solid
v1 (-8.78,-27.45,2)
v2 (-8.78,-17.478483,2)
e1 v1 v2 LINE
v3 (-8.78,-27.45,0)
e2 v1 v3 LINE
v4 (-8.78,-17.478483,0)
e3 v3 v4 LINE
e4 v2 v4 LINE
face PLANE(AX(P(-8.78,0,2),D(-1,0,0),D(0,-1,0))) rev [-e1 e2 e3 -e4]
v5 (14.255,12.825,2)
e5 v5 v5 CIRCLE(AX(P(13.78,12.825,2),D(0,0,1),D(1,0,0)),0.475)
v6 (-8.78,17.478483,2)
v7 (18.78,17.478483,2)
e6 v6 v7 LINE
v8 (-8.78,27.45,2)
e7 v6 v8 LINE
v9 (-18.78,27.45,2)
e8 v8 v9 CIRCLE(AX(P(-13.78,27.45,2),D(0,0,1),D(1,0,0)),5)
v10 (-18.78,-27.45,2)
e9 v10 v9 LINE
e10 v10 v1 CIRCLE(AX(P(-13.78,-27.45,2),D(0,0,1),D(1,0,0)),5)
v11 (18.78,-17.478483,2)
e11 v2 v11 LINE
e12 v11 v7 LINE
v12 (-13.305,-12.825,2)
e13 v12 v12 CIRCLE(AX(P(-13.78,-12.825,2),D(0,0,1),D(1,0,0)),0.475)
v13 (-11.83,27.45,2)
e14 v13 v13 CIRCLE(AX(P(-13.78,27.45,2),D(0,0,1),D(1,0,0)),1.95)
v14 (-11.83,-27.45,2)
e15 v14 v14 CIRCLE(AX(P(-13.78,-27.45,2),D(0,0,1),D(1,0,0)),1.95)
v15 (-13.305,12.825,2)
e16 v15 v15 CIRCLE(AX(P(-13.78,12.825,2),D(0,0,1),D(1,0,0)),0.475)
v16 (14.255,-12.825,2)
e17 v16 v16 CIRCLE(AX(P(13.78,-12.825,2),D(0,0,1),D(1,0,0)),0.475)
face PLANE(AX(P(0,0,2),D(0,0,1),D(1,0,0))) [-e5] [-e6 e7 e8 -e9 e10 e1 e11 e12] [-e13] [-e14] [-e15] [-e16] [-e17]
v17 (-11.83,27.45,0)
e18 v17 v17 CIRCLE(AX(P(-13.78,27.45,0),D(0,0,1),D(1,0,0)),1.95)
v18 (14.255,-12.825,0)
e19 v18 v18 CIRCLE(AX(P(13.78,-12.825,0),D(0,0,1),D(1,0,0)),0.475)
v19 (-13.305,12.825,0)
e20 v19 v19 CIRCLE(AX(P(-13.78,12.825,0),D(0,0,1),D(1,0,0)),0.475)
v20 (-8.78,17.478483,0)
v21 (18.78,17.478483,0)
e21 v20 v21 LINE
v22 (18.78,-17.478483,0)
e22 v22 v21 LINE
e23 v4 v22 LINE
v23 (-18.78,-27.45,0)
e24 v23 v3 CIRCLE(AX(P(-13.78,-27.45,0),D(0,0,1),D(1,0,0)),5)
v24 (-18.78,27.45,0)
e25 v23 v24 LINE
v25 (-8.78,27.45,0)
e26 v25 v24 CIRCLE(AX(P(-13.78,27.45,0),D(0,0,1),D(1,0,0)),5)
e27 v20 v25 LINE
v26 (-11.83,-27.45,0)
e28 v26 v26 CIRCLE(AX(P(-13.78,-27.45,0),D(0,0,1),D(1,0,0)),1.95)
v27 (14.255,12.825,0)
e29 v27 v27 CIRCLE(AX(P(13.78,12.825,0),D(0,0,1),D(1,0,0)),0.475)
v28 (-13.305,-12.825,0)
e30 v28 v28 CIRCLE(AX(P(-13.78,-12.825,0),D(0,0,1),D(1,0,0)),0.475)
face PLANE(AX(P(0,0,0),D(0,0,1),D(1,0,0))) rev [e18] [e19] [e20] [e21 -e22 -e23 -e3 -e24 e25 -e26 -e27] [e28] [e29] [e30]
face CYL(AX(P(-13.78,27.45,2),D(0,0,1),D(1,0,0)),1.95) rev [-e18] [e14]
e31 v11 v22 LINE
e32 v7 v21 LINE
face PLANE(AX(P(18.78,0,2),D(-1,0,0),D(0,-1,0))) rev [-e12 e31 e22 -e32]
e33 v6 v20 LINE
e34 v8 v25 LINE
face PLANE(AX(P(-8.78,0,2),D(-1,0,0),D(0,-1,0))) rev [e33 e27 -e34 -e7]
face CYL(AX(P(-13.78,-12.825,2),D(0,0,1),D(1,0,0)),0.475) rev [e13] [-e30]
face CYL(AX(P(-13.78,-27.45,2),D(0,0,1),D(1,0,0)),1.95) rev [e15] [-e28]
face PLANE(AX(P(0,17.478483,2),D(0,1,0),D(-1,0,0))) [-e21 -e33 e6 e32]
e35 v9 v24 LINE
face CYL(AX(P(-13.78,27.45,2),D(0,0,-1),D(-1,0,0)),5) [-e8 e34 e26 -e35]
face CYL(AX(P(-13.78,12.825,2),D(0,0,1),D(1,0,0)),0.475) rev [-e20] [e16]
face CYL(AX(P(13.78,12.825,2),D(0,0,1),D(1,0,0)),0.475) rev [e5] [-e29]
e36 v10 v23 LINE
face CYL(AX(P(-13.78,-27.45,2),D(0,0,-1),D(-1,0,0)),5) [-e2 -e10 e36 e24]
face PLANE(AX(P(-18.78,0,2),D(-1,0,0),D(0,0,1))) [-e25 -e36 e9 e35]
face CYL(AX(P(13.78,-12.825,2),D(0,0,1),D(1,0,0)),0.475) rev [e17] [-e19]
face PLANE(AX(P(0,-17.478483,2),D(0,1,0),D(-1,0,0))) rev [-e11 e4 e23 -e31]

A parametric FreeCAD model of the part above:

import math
import FreeCAD as App
import Part
import Sketcher

doc = App.newDocument("Part")
body = doc.addObject("PartDesign::Body", "Body")

# Sketch on XY plane
sketch1 = doc.addObject("Sketcher::SketchObject", "Sketch")
body.addObject(sketch1)
sketch1.AttachmentSupport = (doc.XY_Plane, [""])
sketch1.MapMode = "FlatFace"
sketch1.addGeometry([
    Part.LineSegment(App.Vector(19, -17, 0), App.Vector(19, 17, 0)),  # 0
    Part.LineSegment(App.Vector(19, 17, 0), App.Vector(-9, 17, 0)),  # 1
    Part.LineSegment(App.Vector(-9, 17, 0), App.Vector(-9, 27, 0)),  # 2
    Part.ArcOfCircle(Part.Circle(App.Vector(-14, 27, 0), App.Vector(0, 0, 1), 5), math.radians(0), math.radians(180)),  # 3
    Part.LineSegment(App.Vector(-19, 27, 0), App.Vector(-19, -27, 0)),  # 4
    Part.ArcOfCircle(Part.Circle(App.Vector(-14, -27, 0), App.Vector(0, 0, 1), 5), math.radians(180), math.radians(360)),  # 5
    Part.LineSegment(App.Vector(-9, -27, 0), App.Vector(-9, -17, 0)),  # 6
    Part.LineSegment(App.Vector(-9, -17, 0), App.Vector(19, -17, 0)),  # 7
], False)
sketch1.addConstraint([
    Sketcher.Constraint("Coincident", 0, 2, 1, 1),
    Sketcher.Constraint("Coincident", 1, 2, 2, 1),
    Sketcher.Constraint("Tangent", 2, 2, 3, 1),
    Sketcher.Constraint("Tangent", 3, 2, 4, 1),
    Sketcher.Constraint("Tangent", 4, 2, 5, 1),
    Sketcher.Constraint("Tangent", 5, 2, 6, 1),
    Sketcher.Constraint("Coincident", 6, 2, 7, 1),
    Sketcher.Constraint("Coincident", 7, 2, 0, 1),
    Sketcher.Constraint("Vertical", 0),
    Sketcher.Constraint("Horizontal", 1),
    Sketcher.Constraint("Vertical", 2),
    Sketcher.Constraint("Vertical", 4),
    Sketcher.Constraint("Vertical", 6),
    Sketcher.Constraint("Horizontal", 7),
    Sketcher.Constraint("Equal", 3, 5),
    Sketcher.Constraint("Equal", 2, 6),
    Sketcher.Constraint("Radius", 3, 5.0),
    Sketcher.Constraint("DistanceY", 4, 2, 4, 1, 54.9),
    Sketcher.Constraint("DistanceX", 1, 2, 1, 1, 27.56),
    Sketcher.Constraint("DistanceX", 3, 3, -1, 1, 13.78),
    Sketcher.Constraint("DistanceY", -1, 1, 3, 3, 27.45),
    Sketcher.Constraint("DistanceY", 0, 1, 0, 2, 34.956967),
])
pad1 = doc.addObject("PartDesign::Pad", "Pad")
body.addObject(pad1)
pad1.Profile = sketch1
pad1.Length = 2

# Sketch on XY plane
sketch2 = doc.addObject("Sketcher::SketchObject", "Sketch001")
body.addObject(sketch2)
sketch2.AttachmentSupport = (doc.XY_Plane, [""])
sketch2.MapMode = "FlatFace"
sketch2.AttachmentOffset = App.Placement(App.Vector(0, 0, 2), App.Rotation())
sketch2.addGeometry([
    Part.Circle(App.Vector(-13.78, -12.82, 0), App.Vector(0, 0, 1), 0.47),
    Part.Circle(App.Vector(-13.78, 12.82, 0), App.Vector(0, 0, 1), 0.47),
    Part.Circle(App.Vector(13.78, 12.82, 0), App.Vector(0, 0, 1), 0.47),
    Part.Circle(App.Vector(13.78, -12.82, 0), App.Vector(0, 0, 1), 0.47),
], False)
sketch2.addConstraint([
    Sketcher.Constraint("Equal", 0, 1),
    Sketcher.Constraint("Equal", 1, 2),
    Sketcher.Constraint("Equal", 2, 3),
    Sketcher.Constraint("Symmetric", 0, 3, 2, 3, -1, 1),
    Sketcher.Constraint("Symmetric", 1, 3, 3, 3, -1, 1),
    Sketcher.Constraint("Symmetric", 1, 3, 2, 3, -2),
    Sketcher.Constraint("Diameter", 0, 0.95),
    Sketcher.Constraint("DistanceX", 0, 3, -1, 1, 13.78),
    Sketcher.Constraint("DistanceY", 0, 3, 1, 3, 25.65),
])
doc.recompute()
hole = doc.addObject("PartDesign::Hole", "Hole")
body.addObject(hole)
hole.Profile = sketch2
hole.ThreadType = "None"
hole.Diameter = 0.95
hole.DepthType = "ThroughAll"

# Sketch on XY plane
sketch3 = doc.addObject("Sketcher::SketchObject", "Sketch002")
body.addObject(sketch3)
sketch3.AttachmentSupport = (doc.XY_Plane, [""])
sketch3.MapMode = "FlatFace"
sketch3.AttachmentOffset = App.Placement(App.Vector(0, 0, 2), App.Rotation())
sketch3.addGeometry([
    Part.Circle(App.Vector(-13.8, -27.4, 0), App.Vector(0, 0, 1), 1.9),
    Part.Circle(App.Vector(-13.8, 27.4, 0), App.Vector(0, 0, 1), 1.9),
], False)
sketch3.addConstraint([
    Sketcher.Constraint("Equal", 0, 1),
    Sketcher.Constraint("Symmetric", 0, 3, 1, 3, -1),
    Sketcher.Constraint("Diameter", 0, 3.9),
    Sketcher.Constraint("DistanceY", 0, 3, 1, 3, 54.9),
    Sketcher.Constraint("DistanceX", 0, 3, -1, 1, 13.78),
])
doc.recompute()
hole2 = doc.addObject("PartDesign::Hole", "Hole001")
body.addObject(hole2)
hole2.Profile = sketch3
hole2.ThreadType = "None"
hole2.Diameter = 3.9
hole2.DepthType = "ThroughAll"

doc.recompute()
